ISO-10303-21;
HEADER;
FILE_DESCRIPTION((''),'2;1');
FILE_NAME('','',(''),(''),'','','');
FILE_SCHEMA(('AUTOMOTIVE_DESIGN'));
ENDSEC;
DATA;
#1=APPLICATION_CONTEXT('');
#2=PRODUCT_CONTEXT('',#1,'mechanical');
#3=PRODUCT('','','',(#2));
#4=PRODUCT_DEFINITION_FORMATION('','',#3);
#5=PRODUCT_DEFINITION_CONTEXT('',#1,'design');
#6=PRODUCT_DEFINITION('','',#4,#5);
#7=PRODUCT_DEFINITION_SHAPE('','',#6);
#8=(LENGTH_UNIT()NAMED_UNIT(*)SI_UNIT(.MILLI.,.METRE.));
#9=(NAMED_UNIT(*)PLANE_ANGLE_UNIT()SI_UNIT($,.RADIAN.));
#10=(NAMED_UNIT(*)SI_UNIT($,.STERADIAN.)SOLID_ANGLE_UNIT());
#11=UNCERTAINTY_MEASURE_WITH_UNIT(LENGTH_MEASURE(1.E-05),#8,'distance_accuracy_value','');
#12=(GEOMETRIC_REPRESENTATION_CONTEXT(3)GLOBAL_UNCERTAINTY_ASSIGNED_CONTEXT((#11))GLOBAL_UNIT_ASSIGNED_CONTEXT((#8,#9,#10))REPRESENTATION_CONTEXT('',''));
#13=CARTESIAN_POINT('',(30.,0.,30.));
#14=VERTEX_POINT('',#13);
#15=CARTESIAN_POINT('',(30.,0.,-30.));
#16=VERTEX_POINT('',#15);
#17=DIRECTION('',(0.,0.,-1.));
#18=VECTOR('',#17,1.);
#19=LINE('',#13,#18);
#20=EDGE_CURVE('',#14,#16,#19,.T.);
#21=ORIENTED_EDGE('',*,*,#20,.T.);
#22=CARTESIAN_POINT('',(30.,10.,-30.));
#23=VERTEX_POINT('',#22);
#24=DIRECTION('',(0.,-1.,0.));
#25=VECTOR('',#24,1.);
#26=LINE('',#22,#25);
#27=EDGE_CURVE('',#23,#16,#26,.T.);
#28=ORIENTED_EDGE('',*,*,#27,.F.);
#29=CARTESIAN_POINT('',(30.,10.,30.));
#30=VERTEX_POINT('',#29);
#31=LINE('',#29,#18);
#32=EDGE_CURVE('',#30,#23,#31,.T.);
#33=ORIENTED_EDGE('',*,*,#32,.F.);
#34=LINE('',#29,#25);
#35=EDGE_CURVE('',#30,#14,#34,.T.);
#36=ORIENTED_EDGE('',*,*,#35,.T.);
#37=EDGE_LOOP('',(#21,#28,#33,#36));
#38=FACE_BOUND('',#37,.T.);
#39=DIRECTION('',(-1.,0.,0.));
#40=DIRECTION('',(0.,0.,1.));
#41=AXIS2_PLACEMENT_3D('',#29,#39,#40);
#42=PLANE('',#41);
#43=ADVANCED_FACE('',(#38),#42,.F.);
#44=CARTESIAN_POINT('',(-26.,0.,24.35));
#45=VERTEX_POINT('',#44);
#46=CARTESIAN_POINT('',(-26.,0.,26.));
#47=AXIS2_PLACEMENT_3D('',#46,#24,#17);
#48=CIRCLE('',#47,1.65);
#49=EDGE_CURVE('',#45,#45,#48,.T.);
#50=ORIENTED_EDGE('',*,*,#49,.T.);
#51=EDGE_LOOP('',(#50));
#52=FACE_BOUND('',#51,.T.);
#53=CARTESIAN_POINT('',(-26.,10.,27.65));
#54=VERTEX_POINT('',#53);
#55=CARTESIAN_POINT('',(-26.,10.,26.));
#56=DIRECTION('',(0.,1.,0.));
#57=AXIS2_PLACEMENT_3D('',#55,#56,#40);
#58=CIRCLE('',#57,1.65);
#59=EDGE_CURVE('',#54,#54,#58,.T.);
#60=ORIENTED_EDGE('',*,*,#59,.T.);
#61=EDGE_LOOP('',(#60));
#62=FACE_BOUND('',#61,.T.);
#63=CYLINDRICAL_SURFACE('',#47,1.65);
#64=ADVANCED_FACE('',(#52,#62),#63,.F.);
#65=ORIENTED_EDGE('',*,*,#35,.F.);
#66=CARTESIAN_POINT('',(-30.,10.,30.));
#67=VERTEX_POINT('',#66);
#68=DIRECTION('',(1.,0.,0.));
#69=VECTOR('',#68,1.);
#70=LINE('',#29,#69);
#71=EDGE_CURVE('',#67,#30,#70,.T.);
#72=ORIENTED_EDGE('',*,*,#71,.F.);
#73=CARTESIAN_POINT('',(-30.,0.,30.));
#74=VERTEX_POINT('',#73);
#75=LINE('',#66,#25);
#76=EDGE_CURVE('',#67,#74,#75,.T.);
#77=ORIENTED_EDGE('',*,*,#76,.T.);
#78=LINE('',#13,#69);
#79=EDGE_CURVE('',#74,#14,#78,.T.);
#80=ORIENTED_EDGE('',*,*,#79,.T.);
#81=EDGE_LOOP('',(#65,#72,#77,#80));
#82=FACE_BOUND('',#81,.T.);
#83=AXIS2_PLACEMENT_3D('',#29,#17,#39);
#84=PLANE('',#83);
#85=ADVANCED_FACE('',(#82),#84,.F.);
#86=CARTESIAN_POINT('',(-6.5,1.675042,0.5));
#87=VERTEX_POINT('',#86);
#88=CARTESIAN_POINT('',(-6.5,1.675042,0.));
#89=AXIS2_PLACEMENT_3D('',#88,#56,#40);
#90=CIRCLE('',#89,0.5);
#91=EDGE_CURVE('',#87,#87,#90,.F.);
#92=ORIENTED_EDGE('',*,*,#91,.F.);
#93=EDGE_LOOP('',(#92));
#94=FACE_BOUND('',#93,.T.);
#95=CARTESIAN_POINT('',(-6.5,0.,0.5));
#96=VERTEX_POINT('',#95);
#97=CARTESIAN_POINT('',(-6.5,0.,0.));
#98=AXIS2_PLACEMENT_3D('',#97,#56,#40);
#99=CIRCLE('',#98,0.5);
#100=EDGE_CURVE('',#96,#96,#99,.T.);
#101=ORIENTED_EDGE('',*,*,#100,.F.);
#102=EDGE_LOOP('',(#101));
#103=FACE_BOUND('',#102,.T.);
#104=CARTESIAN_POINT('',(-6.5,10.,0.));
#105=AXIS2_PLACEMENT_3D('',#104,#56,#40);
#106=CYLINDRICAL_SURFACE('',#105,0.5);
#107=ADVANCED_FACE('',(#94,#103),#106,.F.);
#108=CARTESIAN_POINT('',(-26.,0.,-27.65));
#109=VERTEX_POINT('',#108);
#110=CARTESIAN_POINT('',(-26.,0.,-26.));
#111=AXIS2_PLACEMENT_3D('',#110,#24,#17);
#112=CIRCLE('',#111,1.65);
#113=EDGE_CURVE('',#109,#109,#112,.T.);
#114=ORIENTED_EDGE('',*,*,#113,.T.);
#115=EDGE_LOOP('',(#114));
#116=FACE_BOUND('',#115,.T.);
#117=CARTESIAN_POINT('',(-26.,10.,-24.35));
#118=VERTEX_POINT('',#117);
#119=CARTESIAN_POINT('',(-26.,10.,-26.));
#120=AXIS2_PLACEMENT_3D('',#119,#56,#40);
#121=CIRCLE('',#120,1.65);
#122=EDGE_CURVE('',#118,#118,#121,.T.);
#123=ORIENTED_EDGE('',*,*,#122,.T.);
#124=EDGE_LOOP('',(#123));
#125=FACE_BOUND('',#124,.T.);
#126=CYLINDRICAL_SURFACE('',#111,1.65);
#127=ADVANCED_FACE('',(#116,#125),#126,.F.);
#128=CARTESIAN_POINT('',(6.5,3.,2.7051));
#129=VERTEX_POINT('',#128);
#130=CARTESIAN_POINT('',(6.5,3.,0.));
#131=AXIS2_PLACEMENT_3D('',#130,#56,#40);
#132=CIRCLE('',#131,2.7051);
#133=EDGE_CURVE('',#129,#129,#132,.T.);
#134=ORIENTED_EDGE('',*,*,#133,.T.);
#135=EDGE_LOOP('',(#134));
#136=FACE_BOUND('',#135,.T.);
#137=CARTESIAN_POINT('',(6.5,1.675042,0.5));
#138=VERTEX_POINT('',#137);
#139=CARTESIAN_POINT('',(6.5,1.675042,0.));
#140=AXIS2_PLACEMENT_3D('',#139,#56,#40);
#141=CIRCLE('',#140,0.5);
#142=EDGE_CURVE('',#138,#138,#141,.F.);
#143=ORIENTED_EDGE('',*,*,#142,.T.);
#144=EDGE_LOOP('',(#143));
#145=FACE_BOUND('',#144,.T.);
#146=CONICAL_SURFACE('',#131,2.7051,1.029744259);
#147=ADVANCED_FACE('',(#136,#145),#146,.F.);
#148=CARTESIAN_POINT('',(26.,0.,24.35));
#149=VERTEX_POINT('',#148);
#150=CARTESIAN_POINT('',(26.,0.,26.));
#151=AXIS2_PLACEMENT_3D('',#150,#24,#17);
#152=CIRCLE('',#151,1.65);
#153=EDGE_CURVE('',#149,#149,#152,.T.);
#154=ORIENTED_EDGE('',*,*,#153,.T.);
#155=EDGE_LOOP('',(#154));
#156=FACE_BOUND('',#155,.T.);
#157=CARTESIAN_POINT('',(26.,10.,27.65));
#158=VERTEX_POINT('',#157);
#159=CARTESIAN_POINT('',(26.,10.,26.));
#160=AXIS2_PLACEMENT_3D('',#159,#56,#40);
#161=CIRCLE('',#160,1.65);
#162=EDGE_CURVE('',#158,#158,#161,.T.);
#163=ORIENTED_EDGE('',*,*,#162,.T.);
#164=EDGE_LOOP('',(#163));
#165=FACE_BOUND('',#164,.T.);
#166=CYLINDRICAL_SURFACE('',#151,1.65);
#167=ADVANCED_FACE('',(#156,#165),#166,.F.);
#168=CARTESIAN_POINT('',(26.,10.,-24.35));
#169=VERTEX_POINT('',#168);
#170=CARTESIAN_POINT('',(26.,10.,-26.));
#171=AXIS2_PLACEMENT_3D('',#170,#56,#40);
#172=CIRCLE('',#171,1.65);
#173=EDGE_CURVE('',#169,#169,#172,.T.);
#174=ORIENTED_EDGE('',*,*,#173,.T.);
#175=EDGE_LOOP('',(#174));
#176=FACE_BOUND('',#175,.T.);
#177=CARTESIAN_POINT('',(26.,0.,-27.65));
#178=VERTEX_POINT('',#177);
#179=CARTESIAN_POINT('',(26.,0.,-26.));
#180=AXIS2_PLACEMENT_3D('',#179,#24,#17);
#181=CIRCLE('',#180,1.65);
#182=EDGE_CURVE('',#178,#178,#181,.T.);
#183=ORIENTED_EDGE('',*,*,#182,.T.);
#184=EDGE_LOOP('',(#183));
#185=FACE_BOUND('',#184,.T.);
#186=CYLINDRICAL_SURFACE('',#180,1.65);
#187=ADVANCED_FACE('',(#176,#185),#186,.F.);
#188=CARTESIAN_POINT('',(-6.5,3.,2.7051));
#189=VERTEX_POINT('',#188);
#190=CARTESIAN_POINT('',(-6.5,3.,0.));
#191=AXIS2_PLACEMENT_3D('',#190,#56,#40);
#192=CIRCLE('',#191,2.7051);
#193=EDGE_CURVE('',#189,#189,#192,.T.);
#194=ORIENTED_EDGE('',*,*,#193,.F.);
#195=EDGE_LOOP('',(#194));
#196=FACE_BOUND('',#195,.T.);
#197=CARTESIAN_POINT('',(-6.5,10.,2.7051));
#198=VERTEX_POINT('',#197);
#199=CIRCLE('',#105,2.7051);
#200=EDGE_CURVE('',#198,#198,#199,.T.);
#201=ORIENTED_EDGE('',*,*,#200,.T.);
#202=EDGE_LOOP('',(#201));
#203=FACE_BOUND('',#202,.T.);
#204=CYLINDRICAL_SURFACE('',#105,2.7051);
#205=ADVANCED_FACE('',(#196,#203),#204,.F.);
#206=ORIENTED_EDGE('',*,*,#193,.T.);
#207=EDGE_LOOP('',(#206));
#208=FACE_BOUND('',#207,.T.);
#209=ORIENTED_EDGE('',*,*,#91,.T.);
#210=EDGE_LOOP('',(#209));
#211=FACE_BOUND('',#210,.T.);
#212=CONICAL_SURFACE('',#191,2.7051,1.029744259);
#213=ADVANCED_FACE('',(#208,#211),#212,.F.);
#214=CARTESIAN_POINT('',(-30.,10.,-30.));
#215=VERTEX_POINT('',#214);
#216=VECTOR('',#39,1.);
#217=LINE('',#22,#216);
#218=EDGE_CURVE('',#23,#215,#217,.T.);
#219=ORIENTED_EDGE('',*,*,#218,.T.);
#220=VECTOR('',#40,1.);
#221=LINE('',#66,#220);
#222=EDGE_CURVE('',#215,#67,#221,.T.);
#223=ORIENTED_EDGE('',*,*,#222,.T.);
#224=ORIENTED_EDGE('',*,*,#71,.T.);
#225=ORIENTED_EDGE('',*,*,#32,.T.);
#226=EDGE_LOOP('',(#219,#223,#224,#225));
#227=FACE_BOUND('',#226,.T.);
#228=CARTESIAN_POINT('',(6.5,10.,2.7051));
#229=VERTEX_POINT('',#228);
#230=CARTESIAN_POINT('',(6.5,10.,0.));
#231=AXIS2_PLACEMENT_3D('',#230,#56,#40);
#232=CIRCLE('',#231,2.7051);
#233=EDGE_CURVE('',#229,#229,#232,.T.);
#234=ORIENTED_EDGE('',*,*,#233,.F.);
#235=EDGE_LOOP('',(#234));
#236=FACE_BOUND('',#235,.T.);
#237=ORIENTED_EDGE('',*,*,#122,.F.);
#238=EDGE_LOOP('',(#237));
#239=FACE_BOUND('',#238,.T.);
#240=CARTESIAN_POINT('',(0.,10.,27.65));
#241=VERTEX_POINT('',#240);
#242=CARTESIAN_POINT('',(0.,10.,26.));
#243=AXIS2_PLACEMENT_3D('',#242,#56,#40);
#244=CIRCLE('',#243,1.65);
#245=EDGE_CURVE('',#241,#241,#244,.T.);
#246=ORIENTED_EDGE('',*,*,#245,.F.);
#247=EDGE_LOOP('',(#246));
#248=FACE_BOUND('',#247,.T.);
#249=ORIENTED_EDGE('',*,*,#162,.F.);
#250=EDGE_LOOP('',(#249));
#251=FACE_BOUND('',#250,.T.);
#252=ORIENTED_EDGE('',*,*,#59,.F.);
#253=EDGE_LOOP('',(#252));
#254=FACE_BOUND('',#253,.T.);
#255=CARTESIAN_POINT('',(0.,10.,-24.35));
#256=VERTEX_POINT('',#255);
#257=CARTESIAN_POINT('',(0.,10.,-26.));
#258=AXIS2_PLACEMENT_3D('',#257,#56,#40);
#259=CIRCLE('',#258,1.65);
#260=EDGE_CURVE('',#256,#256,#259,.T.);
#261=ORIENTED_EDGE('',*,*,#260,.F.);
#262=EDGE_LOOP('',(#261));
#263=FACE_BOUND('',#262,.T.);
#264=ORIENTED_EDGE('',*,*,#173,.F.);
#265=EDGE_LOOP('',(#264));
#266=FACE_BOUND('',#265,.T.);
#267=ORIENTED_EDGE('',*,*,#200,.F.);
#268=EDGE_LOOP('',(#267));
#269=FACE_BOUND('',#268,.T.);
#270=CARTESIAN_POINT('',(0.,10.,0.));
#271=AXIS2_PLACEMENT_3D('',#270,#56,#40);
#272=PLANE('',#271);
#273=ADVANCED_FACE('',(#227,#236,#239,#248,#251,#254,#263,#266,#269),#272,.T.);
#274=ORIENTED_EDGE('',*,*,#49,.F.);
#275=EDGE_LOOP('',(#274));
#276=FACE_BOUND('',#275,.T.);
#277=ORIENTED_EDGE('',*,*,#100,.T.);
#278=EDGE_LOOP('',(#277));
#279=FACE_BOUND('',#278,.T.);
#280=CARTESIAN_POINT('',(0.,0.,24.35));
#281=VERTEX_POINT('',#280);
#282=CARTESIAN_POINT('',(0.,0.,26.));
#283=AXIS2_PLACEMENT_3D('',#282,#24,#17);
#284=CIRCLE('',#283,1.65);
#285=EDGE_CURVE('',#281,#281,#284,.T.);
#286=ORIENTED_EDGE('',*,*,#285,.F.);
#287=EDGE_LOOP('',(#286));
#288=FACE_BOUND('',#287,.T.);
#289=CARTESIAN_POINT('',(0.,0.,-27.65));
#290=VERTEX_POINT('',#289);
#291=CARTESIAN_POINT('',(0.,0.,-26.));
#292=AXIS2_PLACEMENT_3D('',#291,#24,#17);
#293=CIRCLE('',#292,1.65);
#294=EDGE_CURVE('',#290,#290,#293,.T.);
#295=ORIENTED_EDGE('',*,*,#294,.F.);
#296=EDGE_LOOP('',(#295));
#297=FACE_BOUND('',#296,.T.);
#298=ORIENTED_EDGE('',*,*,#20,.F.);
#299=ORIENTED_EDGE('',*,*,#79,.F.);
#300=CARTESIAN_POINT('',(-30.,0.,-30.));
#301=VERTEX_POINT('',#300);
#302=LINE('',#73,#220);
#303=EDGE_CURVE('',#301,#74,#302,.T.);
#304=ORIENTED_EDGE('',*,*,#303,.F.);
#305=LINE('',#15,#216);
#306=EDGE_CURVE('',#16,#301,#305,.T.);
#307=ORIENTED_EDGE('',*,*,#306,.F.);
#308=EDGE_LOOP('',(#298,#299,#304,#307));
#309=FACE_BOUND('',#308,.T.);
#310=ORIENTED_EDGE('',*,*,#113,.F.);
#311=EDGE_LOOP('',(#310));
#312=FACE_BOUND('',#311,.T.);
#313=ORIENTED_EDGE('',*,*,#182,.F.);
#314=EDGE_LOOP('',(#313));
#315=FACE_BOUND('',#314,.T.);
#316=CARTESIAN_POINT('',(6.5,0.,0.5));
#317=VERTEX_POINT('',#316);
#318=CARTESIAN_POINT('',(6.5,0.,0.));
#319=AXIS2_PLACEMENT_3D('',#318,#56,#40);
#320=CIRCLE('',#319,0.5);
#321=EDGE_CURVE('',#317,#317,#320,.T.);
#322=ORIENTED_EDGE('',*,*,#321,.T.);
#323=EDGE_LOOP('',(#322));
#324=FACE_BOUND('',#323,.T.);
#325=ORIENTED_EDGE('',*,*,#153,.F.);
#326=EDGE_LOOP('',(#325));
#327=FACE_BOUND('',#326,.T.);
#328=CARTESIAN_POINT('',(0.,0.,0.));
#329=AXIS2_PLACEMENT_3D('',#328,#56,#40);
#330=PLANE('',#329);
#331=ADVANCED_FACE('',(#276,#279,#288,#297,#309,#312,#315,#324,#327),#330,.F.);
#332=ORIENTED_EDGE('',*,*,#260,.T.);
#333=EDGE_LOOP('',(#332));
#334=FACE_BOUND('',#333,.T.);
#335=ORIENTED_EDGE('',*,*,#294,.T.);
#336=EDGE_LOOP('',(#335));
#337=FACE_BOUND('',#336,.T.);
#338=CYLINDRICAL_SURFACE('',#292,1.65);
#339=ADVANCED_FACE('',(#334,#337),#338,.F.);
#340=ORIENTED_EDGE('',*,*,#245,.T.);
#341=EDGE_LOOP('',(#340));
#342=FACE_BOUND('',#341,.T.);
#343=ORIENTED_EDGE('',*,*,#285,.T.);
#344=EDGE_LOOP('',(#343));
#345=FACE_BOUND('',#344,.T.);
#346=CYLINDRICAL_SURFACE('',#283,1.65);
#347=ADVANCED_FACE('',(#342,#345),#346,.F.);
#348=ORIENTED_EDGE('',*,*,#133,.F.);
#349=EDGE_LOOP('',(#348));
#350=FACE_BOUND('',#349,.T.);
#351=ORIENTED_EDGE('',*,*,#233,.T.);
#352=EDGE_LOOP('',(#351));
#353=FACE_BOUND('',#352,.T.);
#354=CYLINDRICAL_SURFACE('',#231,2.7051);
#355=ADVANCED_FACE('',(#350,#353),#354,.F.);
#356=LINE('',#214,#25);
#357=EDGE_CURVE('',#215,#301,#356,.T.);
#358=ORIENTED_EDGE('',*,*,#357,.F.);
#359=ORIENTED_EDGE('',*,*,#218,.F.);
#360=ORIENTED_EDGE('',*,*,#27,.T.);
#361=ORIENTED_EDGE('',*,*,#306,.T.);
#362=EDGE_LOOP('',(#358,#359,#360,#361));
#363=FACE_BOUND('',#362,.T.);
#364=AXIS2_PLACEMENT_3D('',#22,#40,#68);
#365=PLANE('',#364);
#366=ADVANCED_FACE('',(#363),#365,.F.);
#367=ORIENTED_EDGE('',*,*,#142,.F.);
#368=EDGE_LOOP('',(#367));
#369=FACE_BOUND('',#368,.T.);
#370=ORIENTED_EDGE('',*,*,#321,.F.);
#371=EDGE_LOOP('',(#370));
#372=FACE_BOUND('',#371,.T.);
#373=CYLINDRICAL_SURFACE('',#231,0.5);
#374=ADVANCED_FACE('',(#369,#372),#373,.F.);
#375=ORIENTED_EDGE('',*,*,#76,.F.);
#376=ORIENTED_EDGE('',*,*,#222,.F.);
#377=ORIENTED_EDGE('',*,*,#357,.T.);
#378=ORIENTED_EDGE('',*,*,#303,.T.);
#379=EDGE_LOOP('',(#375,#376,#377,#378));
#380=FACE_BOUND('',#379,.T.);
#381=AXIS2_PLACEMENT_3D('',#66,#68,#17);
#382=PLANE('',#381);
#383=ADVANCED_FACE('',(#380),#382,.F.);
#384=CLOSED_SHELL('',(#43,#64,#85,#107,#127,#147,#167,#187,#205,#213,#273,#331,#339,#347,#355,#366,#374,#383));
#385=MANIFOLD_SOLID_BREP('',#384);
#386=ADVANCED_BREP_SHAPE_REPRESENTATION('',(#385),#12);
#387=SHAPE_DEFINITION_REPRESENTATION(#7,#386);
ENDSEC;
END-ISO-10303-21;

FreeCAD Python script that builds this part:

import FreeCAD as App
import Part
import Sketcher

V = App.Vector
Q = App.Units.Quantity

doc = App.newDocument("Part")
params = doc.addObject("Spreadsheet::Sheet", "Params")
for row, (alias, value) in enumerate([
    ("sketch1_width", "60 mm"),
    ("pad1_length", "10 mm"),
    ("sketch2_diameter", "3.3 mm"),
    ("hole_diameter", "3.3 mm"),
    ("hole_depth", "10 mm"),
    ("hole2_diameter", "5.4102 mm"),
    ("hole2_depth", "7 mm"),
    ("sketch4_diameter", "1 mm"),
    ("hole3_diameter", "1 mm"),
], start=1):
    params.set(f"A{row}", alias)
    params.set(f"B{row}", "=" + value)
    params.setAlias(f"B{row}", alias)

body = doc.addObject("PartDesign::Body", "Body")

# Sketch on XZ plane
sketch1 = doc.addObject("Sketcher::SketchObject", "Sketch")
body.addObject(sketch1)
sketch1.AttachmentSupport = (doc.XZ_Plane, [""])
sketch1.MapMode = "FlatFace"
sketch1.addGeometry(Part.LineSegment(V(-30, -30, 0), V(-30, 30, 0)), False)
sketch1.addGeometry(Part.LineSegment(V(-30, 30, 0), V(30, 30, 0)), False)
sketch1.addGeometry(Part.LineSegment(V(30, 30, 0), V(30, -30, 0)), False)
sketch1.addGeometry(Part.LineSegment(V(30, -30, 0), V(-30, -30, 0)), False)
sketch1.addConstraint(Sketcher.Constraint("Coincident", 0, 2, 1, 1))
sketch1.addConstraint(Sketcher.Constraint("Coincident", 1, 2, 2, 1))
sketch1.addConstraint(Sketcher.Constraint("Coincident", 2, 2, 3, 1))
sketch1.addConstraint(Sketcher.Constraint("Coincident", 3, 2, 0, 1))
sketch1.addConstraint(Sketcher.Constraint("Vertical", 0))
sketch1.addConstraint(Sketcher.Constraint("Horizontal", 1))
sketch1.addConstraint(Sketcher.Constraint("Vertical", 2))
sketch1.addConstraint(Sketcher.Constraint("Horizontal", 3))
sketch1.addConstraint(Sketcher.Constraint("Symmetric", 0, 2, 2, 2, -1, 1))
sketch1.addConstraint(Sketcher.Constraint("Equal", 3, 0))
sketch1.addConstraint(Sketcher.Constraint("DistanceX", 1, 1, 1, 2, Q("60 mm")))
sketch1.setExpression("Constraints[10]", "Params.sketch1_width")
pad1 = doc.addObject("PartDesign::Pad", "Pad")
body.addObject(pad1)
pad1.Profile = sketch1
pad1.setExpression("Length", "Params.pad1_length")
pad1.Reversed = True

# Sketch on XZ plane
sketch2 = doc.addObject("Sketcher::SketchObject", "Sketch001")
body.addObject(sketch2)
sketch2.AttachmentSupport = (doc.XZ_Plane, [""])
sketch2.MapMode = "FlatFace"
sketch2.addGeometry(Part.Circle(V(0, -26, 0), V(0, 0, 1), 1.6), False)
sketch2.addGeometry(Part.Circle(V(-26, -26, 0), V(0, 0, 1), 1.6), False)
sketch2.addGeometry(Part.Circle(V(26, -26, 0), V(0, 0, 1), 1.6), False)
sketch2.addGeometry(Part.Circle(V(26, 26, 0), V(0, 0, 1), 1.6), False)
sketch2.addGeometry(Part.Circle(V(0, 26, 0), V(0, 0, 1), 1.6), False)
sketch2.addGeometry(Part.Circle(V(-26, 26, 0), V(0, 0, 1), 1.6), False)
sketch2.addConstraint(Sketcher.Constraint("Equal", 0, 1))
sketch2.addConstraint(Sketcher.Constraint("Equal", 1, 2))
sketch2.addConstraint(Sketcher.Constraint("Equal", 2, 3))
sketch2.addConstraint(Sketcher.Constraint("Equal", 3, 4))
sketch2.addConstraint(Sketcher.Constraint("Equal", 4, 5))
sketch2.addConstraint(Sketcher.Constraint("Symmetric", 1, 3, 3, 3, -1, 1))
sketch2.addConstraint(Sketcher.Constraint("Symmetric", 0, 3, 4, 3, -1, 1))
sketch2.addConstraint(Sketcher.Constraint("Symmetric", 2, 3, 5, 3, -1, 1))
sketch2.addConstraint(Sketcher.Constraint("Symmetric", 1, 3, 2, 3, -2))
sketch2.addConstraint(Sketcher.Constraint("PointOnObject", 0, 3, -2))
sketch2.addConstraint(Sketcher.Constraint("Horizontal", 0, 3, 1, 3))
sketch2.addConstraint(Sketcher.Constraint("Diameter", 0, Q("3.3 mm")))
sketch2.addConstraint(Sketcher.Constraint("DistanceY", 0, 3, -1, 1, Q("26 mm")))
sketch2.addConstraint(Sketcher.Constraint("DistanceX", 1, 3, -1, 1, Q("26 mm")))
sketch2.setExpression("Constraints[11]", "Params.sketch2_diameter")
doc.recompute()
hole = doc.addObject("PartDesign::Hole", "Hole")
body.addObject(hole)
hole.Profile = sketch2
hole.ThreadType = "None"
hole.setExpression("Diameter", "Params.hole_diameter")
hole.DepthType = "Dimension"
hole.setExpression("Depth", "Params.hole_depth")
hole.DrillPoint = "Flat"

# Sketch on XZ plane
sketch3 = doc.addObject("Sketcher::SketchObject", "Sketch002")
body.addObject(sketch3)
sketch3.AttachmentSupport = (doc.XZ_Plane, [""])
sketch3.MapMode = "FlatFace"
sketch3.AttachmentOffset = App.Placement(V(0, 0, -10), App.Rotation())
sketch3.addGeometry(Part.Circle(V(-6.5, 0, 0), V(0, 0, 1), 2.7), False)
sketch3.addGeometry(Part.Circle(V(6.5, 0, 0), V(0, 0, 1), 2.7), False)
sketch3.addConstraint(Sketcher.Constraint("Equal", 0, 1))
sketch3.addConstraint(Sketcher.Constraint("Symmetric", 0, 3, 1, 3, -1, 1))
sketch3.addConstraint(Sketcher.Constraint("PointOnObject", 0, 3, -1))
sketch3.addConstraint(Sketcher.Constraint("DistanceX", 0, 3, 1, 3, Q("13 mm")))
sketch3.addConstraint(Sketcher.Constraint("Diameter", 0, Q("5.4102 mm")))
doc.recompute()
hole2 = doc.addObject("PartDesign::Hole", "Hole001")
body.addObject(hole2)
hole2.Profile = sketch3
hole2.ThreadType = "None"
hole2.setExpression("Diameter", "Params.hole2_diameter")
hole2.DepthType = "Dimension"
hole2.setExpression("Depth", "Params.hole2_depth")
hole2.DrillPoint = "Angled"
hole2.DrillPointAngle = 118
hole2.Reversed = True

# Sketch on XZ plane
sketch4 = doc.addObject("Sketcher::SketchObject", "Sketch003")
body.addObject(sketch4)
sketch4.AttachmentSupport = (doc.XZ_Plane, [""])
sketch4.MapMode = "FlatFace"
sketch4.AttachmentOffset = App.Placement(V(0, 0, -10), App.Rotation())
sketch4.addGeometry(Part.Circle(V(-6.5, 0, 0), V(0, 0, 1), 0.5), False)
sketch4.addGeometry(Part.Circle(V(6.5, 0, 0), V(0, 0, 1), 0.5), False)
sketch4.addConstraint(Sketcher.Constraint("Equal", 0, 1))
sketch4.addConstraint(Sketcher.Constraint("Symmetric", 0, 3, 1, 3, -1, 1))
sketch4.addConstraint(Sketcher.Constraint("PointOnObject", 0, 3, -1))
sketch4.addConstraint(Sketcher.Constraint("Diameter", 0, Q("1 mm")))
sketch4.addConstraint(Sketcher.Constraint("DistanceX", 0, 3, 1, 3, Q("13 mm")))
sketch4.setExpression("Constraints[3]", "Params.sketch4_diameter")
doc.recompute()
hole3 = doc.addObject("PartDesign::Hole", "Hole002")
body.addObject(hole3)
hole3.Profile = sketch4
hole3.ThreadType = "None"
hole3.setExpression("Diameter", "Params.hole3_diameter")
hole3.DepthType = "ThroughAll"
hole3.Reversed = True

doc.recompute()
